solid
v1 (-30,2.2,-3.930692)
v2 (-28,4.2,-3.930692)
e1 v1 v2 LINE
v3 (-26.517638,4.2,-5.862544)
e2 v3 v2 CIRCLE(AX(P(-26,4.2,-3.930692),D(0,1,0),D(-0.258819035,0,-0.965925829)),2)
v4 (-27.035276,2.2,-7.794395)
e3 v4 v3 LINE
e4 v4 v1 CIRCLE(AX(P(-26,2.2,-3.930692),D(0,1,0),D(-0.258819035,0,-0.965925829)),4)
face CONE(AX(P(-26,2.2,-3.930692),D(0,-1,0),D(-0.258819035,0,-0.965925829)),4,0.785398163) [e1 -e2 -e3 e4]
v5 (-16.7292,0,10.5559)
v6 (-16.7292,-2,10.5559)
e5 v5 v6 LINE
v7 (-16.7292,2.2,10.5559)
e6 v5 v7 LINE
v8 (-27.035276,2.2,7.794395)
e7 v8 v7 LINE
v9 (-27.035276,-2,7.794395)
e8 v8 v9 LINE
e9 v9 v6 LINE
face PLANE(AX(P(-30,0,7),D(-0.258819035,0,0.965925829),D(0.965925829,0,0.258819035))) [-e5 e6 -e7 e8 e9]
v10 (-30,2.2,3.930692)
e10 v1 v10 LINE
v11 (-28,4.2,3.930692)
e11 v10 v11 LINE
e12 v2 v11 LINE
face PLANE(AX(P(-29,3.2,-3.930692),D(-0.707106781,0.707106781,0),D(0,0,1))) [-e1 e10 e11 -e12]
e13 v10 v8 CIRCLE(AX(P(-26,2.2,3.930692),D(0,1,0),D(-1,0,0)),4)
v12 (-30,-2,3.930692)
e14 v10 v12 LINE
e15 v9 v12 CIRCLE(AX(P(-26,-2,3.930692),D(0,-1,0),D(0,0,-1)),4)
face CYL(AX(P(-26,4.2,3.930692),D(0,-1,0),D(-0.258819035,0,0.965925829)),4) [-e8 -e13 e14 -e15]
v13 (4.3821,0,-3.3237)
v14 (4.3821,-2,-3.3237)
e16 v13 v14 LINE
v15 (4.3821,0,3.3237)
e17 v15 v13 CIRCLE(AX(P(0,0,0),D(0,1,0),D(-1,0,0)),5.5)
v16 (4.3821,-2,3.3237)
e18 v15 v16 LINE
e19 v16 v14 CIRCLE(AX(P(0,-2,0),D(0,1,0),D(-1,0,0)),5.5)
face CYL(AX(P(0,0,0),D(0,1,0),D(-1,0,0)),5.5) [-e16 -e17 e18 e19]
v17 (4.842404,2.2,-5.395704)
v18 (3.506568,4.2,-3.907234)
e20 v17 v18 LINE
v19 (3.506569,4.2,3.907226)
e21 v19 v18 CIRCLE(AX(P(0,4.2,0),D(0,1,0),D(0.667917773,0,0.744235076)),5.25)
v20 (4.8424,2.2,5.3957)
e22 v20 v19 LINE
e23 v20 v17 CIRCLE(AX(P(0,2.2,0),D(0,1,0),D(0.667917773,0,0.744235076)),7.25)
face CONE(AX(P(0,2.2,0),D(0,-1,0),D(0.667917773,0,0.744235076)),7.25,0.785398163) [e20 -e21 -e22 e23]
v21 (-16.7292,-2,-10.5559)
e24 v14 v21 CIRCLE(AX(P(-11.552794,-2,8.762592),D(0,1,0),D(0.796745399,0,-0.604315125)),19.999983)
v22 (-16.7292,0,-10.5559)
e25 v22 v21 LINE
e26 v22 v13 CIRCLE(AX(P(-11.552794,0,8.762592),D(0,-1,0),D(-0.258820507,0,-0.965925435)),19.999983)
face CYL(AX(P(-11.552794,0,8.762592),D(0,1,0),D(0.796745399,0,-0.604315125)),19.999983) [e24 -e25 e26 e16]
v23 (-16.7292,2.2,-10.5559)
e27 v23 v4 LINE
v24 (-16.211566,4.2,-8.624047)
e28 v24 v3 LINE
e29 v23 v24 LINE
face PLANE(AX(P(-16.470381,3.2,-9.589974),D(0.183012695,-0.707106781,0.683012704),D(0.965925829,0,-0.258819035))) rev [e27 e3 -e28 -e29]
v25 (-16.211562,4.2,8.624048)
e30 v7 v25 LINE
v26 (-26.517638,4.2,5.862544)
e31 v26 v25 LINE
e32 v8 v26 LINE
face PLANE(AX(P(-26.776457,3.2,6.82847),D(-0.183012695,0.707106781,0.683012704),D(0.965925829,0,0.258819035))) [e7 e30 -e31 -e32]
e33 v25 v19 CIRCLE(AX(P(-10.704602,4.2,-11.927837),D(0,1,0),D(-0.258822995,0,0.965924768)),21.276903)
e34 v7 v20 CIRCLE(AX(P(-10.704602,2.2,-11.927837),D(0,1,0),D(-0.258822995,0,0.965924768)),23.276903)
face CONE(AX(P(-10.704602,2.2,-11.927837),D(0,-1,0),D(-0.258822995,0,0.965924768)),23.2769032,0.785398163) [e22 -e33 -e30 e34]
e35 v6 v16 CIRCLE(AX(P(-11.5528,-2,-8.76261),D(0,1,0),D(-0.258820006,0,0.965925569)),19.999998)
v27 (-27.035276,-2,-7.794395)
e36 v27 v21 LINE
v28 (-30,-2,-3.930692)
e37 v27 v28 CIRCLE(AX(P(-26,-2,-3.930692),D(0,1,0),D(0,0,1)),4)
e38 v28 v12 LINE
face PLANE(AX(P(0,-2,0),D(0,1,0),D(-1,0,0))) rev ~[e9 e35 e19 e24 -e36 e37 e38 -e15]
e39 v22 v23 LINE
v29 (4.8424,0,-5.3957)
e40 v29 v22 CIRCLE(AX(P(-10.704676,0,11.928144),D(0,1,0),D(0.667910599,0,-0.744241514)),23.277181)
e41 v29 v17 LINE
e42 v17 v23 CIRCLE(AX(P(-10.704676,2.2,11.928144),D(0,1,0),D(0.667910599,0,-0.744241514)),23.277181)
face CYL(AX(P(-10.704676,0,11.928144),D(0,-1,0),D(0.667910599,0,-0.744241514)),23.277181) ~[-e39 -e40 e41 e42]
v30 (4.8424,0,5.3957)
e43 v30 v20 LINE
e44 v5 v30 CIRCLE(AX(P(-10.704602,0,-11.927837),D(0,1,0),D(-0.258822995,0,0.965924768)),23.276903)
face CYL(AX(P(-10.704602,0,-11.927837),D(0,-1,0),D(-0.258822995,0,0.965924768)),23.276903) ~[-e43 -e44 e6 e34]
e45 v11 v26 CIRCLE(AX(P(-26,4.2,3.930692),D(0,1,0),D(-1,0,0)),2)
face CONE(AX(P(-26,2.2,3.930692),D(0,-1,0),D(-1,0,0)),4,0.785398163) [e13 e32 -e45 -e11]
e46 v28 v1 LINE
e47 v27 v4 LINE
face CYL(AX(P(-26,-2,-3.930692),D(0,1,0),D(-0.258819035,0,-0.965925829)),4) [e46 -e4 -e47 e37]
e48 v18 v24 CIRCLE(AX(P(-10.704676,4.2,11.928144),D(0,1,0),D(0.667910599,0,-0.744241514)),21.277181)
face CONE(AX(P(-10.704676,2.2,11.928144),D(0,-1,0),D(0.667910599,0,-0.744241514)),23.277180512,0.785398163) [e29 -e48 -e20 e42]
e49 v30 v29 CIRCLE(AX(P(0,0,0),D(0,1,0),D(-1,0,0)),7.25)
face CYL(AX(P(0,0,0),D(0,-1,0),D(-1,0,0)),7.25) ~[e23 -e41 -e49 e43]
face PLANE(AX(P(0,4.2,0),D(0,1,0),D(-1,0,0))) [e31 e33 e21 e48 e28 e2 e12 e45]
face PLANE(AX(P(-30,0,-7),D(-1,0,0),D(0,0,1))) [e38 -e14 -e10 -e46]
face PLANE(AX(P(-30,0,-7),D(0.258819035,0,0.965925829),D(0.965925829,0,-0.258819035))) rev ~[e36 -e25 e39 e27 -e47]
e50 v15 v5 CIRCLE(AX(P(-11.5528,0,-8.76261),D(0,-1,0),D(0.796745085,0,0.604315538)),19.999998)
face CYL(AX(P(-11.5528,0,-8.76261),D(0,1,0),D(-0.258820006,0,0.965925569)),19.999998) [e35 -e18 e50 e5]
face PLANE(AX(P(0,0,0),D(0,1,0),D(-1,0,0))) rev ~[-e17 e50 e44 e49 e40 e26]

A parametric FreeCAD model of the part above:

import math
import FreeCAD as App
import Part
import Sketcher
from FreeCAD import Vector
Q = App.Units.Quantity


def edges_at(feature, points):
    """Names of the edges that pass closest to the given points."""
    edges = feature.Shape.Edges
    near = lambda p: min(range(len(edges)), key=lambda i: edges[i].distToShape(Part.Vertex(*p))[0])
    return sorted({f"Edge{near(p) + 1}" for p in points})

doc = App.newDocument("Part")
params = doc.addObject("Spreadsheet::Sheet", "Params")
for row, (alias, value) in enumerate([
    ("sketch1_radius", "20 mm"),
    ("sketch1_radius2", "5.5 mm"),
    ("sketch1_height", "14 mm"),
    ("pad1_length", "2 mm"),
    ("sketch2_height", "14 mm"),
    ("sketch2_radius", "7.25 mm"),
    ("pad2_length", "4.2 mm"),
    ("fillet_radius", "4 mm"),
    ("chamfer_size", "2 mm"),
], start=1):
    params.set(f"A{row}", alias)
    params.set(f"B{row}", "=" + value)
    params.setAlias(f"B{row}", alias)

body = doc.addObject("PartDesign::Body", "Body")

sketch1 = doc.addObject("Sketcher::SketchObject", "Sketch")
body.addObject(sketch1)
sketch1.AttachmentSupport = (doc.XZ_Plane, [""])
sketch1.MapMode = "FlatFace"
sketch1.addGeometry([
    Part.ArcOfCircle(Part.Circle(Vector(0, 0, 0), Vector(0, 0, 1), 6), math.radians(-37), math.radians(37)),
    Part.ArcOfCircle(Part.Circle(Vector(-12, 9, 0), Vector(0, 0, 1), 20), math.radians(-105), math.radians(-37)),
    Part.LineSegment(Vector(-17, -11, 0), Vector(-30, -7, 0)),
    Part.LineSegment(Vector(-30, -7, 0), Vector(-30, 7, 0)),
    Part.LineSegment(Vector(-30, 7, 0), Vector(-17, 11, 0)),
    Part.ArcOfCircle(Part.Circle(Vector(-12, -9, 0), Vector(0, 0, 1), 20), math.radians(37), math.radians(105)),
], False)
sketch1.addConstraint([
    Sketcher.Constraint("Tangent", 0, 1, 1, 2),
    Sketcher.Constraint("Tangent", 1, 1, 2, 1),
    Sketcher.Constraint("Coincident", 2, 2, 3, 1),
    Sketcher.Constraint("Coincident", 3, 2, 4, 1),
    Sketcher.Constraint("Tangent", 4, 2, 5, 2),
    Sketcher.Constraint("Tangent", 5, 1, 0, 2),
    Sketcher.Constraint("Vertical", 3),
    Sketcher.Constraint("Coincident", 0, 3, -1, 1),
    Sketcher.Constraint("Equal", 1, 5),
    Sketcher.Constraint("Symmetric", 1, 1, 4, 2, -1),
    Sketcher.Constraint("Radius", 1, 20.0),
    Sketcher.Constraint("Radius", 0, 5.5),
    Sketcher.Constraint("DistanceY", 3, 1, 3, 2, 14.0),
    Sketcher.Constraint("DistanceX", 2, 2, -1, 1, 30.0),
    Sketcher.Constraint("Angle", 2, Q("165 deg")),
])
sketch1.setExpression("Constraints[10]", "Params.sketch1_radius")
sketch1.setExpression("Constraints[11]", "Params.sketch1_radius2")
sketch1.setExpression("Constraints[12]", "Params.sketch1_height")
pad1 = doc.addObject("PartDesign::Pad", "Pad")
body.addObject(pad1)
pad1.Profile = sketch1
pad1.setExpression("Length", "Params.pad1_length")

sketch2 = doc.addObject("Sketcher::SketchObject", "Sketch001")
body.addObject(sketch2)
sketch2.AttachmentSupport = (doc.XZ_Plane, [""])
sketch2.MapMode = "FlatFace"
sketch2.addGeometry([
    Part.ArcOfCircle(Part.Circle(Vector(0, 0, 0), Vector(0, 0, 1), 7), math.radians(-48), math.radians(48)),
    Part.ArcOfCircle(Part.Circle(Vector(-11, 12, 0), Vector(0, 0, 1), 23), math.radians(-105), math.radians(-48)),
    Part.LineSegment(Vector(-17, -11, 0), Vector(-30, -7, 0)),
    Part.LineSegment(Vector(-30, -7, 0), Vector(-30, 7, 0)),
    Part.LineSegment(Vector(-30, 7, 0), Vector(-17, 11, 0)),
    Part.ArcOfCircle(Part.Circle(Vector(-11, -12, 0), Vector(0, 0, 1), 23), math.radians(48), math.radians(105)),
], False)
sketch2.addConstraint([
    Sketcher.Constraint("Tangent", 0, 1, 1, 2),
    Sketcher.Constraint("Tangent", 1, 1, 2, 1),
    Sketcher.Constraint("Coincident", 2, 2, 3, 1),
    Sketcher.Constraint("Coincident", 3, 2, 4, 1),
    Sketcher.Constraint("Tangent", 4, 2, 5, 2),
    Sketcher.Constraint("Tangent", 5, 1, 0, 2),
    Sketcher.Constraint("Vertical", 3),
    Sketcher.Constraint("Coincident", 0, 3, -1, 1),
    Sketcher.Constraint("Equal", 1, 5),
    Sketcher.Constraint("Symmetric", 1, 1, 4, 2, -1),
    Sketcher.Constraint("DistanceY", 3, 1, 3, 2, 14.0),
    Sketcher.Constraint("Radius", 0, 7.25),
    Sketcher.Constraint("DistanceX", 2, 2, -1, 1, 30.0),
    Sketcher.Constraint("Angle", 2, Q("165 deg")),
    Sketcher.Constraint("Radius", 1, 23.277),
])
sketch2.setExpression("Constraints[10]", "Params.sketch2_height")
sketch2.setExpression("Constraints[11]", "Params.sketch2_radius")
pad2 = doc.addObject("PartDesign::Pad", "Pad001")
body.addObject(pad2)
pad2.Profile = sketch2
pad2.setExpression("Length", "Params.pad2_length")
pad2.Reversed = True
doc.recompute()

fillet = doc.addObject("PartDesign::Fillet", "Fillet")
body.addObject(fillet)
fillet.Base = (pad2, edges_at(pad2, [(-30, 1.1, 7), (-30, 1.1, -7)]))
fillet.setExpression("Radius", "Params.fillet_radius")
doc.recompute()

chamfer = doc.addObject("PartDesign::Chamfer", "Chamfer")
body.addObject(chamfer)
chamfer.Base = (fillet, edges_at(fillet, [
    (-30, 4.2, 0),
    (-29.173, 4.2, 6.366),
    (-21.882, 4.2, 9.175),
    (-5.289, 4.2, 10.71),
    (7.25, 4.2, 0),
    (-5.289, 4.2, -10.71),
    (-21.882, 4.2, -9.175),
    (-29.173, 4.2, -6.366),
]))
chamfer.setExpression("Size", "Params.chamfer_size")

doc.recompute()
